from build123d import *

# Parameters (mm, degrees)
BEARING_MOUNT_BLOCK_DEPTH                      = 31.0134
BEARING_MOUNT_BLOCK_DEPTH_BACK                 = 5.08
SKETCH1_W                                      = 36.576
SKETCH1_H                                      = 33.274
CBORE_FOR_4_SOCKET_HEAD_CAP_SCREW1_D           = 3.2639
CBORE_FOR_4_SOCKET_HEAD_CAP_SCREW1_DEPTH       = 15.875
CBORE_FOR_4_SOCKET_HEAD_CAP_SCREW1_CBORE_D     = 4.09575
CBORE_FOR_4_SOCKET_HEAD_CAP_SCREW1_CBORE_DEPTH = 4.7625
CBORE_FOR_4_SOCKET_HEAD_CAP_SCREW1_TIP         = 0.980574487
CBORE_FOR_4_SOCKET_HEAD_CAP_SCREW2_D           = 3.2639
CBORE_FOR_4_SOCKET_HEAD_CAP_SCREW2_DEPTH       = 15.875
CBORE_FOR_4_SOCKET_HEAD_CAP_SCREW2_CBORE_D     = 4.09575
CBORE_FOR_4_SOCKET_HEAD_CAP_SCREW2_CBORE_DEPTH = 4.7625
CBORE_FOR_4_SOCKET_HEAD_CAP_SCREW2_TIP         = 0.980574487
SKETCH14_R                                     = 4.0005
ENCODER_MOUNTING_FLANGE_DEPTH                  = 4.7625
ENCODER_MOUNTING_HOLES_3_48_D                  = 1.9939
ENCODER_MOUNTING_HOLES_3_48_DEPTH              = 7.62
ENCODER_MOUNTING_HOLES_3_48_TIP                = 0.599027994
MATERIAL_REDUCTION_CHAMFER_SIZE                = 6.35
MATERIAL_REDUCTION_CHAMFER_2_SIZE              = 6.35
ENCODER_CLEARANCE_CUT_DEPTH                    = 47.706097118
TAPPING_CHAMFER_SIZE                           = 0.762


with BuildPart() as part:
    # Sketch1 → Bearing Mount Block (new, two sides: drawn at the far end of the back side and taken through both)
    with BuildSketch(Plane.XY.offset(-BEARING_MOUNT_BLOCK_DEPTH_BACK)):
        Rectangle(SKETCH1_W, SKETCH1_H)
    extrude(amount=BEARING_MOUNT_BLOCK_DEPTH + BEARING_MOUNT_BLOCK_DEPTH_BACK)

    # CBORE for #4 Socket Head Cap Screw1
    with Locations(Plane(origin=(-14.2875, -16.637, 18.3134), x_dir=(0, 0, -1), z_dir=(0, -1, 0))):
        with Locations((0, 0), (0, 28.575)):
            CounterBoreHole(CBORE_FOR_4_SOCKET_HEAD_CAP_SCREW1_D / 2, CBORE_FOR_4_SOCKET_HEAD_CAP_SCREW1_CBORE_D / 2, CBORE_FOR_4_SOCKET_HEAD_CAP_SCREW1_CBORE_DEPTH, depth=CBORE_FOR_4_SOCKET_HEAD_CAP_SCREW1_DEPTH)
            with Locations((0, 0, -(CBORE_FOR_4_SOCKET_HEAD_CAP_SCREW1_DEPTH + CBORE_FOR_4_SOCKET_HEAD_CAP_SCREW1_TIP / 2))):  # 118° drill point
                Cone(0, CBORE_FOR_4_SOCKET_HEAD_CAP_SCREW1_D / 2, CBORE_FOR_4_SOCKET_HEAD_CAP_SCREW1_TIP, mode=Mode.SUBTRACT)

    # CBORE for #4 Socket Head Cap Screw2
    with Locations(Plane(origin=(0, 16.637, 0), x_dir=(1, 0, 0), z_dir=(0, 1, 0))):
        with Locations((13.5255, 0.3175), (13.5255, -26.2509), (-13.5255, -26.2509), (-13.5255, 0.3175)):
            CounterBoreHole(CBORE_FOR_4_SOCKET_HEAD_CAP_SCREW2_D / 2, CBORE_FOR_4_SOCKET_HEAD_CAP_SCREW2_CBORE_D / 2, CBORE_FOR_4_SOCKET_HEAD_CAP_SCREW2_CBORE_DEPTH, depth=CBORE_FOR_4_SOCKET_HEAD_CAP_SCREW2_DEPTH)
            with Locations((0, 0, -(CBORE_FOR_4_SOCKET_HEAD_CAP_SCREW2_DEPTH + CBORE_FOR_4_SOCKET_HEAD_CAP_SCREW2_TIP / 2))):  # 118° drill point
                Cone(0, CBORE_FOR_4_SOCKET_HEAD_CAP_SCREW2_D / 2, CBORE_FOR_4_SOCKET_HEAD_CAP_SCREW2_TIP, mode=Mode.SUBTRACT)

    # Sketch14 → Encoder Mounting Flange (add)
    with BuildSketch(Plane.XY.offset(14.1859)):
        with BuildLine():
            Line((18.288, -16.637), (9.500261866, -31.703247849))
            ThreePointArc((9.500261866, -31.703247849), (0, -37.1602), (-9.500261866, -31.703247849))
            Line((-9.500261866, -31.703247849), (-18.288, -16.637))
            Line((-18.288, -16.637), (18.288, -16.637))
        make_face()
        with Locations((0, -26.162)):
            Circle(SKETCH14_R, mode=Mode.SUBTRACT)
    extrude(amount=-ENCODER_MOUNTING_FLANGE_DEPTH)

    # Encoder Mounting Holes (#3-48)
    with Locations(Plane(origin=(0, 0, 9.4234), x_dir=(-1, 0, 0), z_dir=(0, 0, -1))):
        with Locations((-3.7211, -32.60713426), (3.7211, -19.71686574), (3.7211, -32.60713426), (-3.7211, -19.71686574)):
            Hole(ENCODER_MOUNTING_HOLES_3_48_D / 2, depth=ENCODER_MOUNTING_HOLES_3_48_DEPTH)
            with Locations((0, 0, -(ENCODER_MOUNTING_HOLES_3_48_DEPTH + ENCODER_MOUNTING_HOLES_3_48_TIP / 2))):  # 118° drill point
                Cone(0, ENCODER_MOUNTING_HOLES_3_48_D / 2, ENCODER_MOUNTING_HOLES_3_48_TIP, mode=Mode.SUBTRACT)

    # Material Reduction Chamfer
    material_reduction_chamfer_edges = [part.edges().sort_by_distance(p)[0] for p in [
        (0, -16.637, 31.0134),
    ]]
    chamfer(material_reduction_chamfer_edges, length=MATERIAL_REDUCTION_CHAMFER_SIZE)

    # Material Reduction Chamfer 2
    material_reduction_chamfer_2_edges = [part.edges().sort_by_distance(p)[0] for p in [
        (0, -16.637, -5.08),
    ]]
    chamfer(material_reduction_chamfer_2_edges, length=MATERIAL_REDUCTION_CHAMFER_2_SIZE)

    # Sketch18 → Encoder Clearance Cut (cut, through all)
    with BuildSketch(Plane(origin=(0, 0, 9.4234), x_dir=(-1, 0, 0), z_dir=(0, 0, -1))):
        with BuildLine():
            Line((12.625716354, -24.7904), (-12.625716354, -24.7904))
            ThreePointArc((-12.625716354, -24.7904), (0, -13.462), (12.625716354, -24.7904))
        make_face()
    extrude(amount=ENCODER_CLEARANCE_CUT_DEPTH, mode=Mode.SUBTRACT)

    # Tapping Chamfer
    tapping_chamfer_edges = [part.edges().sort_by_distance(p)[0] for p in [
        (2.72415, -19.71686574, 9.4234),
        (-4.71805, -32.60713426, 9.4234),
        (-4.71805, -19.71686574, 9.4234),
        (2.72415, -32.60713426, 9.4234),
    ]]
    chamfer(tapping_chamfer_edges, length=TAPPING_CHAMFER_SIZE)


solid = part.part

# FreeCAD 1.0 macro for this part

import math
import FreeCAD as App
import Part
import Sketcher
Q = App.Units.Quantity


def edges_at(feature, points):
    """Names of the edges that pass closest to the given points."""
    edges = feature.Shape.Edges
    near = lambda p: min(range(len(edges)), key=lambda i: edges[i].distToShape(Part.Vertex(*p))[0])
    return sorted({f"Edge{near(p) + 1}" for p in points})

doc = App.newDocument("Part")
body = doc.addObject("PartDesign::Body", "Body")

sketch1 = doc.addObject("Sketcher::SketchObject", "Sketch")
body.addObject(sketch1)
sketch1.AttachmentSupport = (doc.XY_Plane, [""])
sketch1.MapMode = "FlatFace"
sketch1.addGeometry([
    Part.LineSegment(App.Vector(-18, 17, 0), App.Vector(-18, -17, 0)),
    Part.LineSegment(App.Vector(-18, -17, 0), App.Vector(18, -17, 0)),
    Part.LineSegment(App.Vector(18, -17, 0), App.Vector(18, 17, 0)),
    Part.LineSegment(App.Vector(18, 17, 0), App.Vector(-18, 17, 0)),
], False)
sketch1.addConstraint([
    Sketcher.Constraint("Coincident", 0, 2, 1, 1),
    Sketcher.Constraint("Coincident", 1, 2, 2, 1),
    Sketcher.Constraint("Coincident", 2, 2, 3, 1),
    Sketcher.Constraint("Coincident", 3, 2, 0, 1),
    Sketcher.Constraint("Vertical", 0),
    Sketcher.Constraint("Horizontal", 1),
    Sketcher.Constraint("Vertical", 2),
    Sketcher.Constraint("Horizontal", 3),
    Sketcher.Constraint("Symmetric", 0, 2, 2, 2, -1, 1),
    Sketcher.Constraint("DistanceX", 1, 1, 1, 2, Q("1.44 in")),
    Sketcher.Constraint("DistanceY", 0, 2, 0, 1, Q("1.31 in")),
])
pad1 = doc.addObject("PartDesign::Pad", "Pad")
body.addObject(pad1)
pad1.Profile = sketch1
pad1.Type = "TwoLengths"
pad1.Length = Q("1.221 in")
pad1.Length2 = Q("0.2 in")

sketch2 = doc.addObject("Sketcher::SketchObject", "Sketch001")
body.addObject(sketch2)
sketch2.AttachmentSupport = (doc.XZ_Plane, [""])
sketch2.MapMode = "FlatFace"
sketch2.AttachmentOffset = App.Placement(App.Vector(0, 0, 0.655 * 25.4), App.Rotation())
sketch2.addGeometry([
    Part.Circle(App.Vector(-14.3, 18.3, 0), App.Vector(0, 0, 1), 1.6),
    Part.Circle(App.Vector(14.3, 18.3, 0), App.Vector(0, 0, 1), 1.6),
], False)
sketch2.addConstraint([
    Sketcher.Constraint("Equal", 0, 1),
    Sketcher.Constraint("Symmetric", 0, 3, 1, 3, -2),
    Sketcher.Constraint("Diameter", 0, Q("0.1285 in")),
    Sketcher.Constraint("DistanceX", 0, 3, -1, 1, Q("0.5625 in")),
    Sketcher.Constraint("DistanceY", -1, 1, 0, 3, Q("0.721 in")),
])
doc.recompute()
hole = doc.addObject("PartDesign::Hole", "Hole")
body.addObject(hole)
hole.Profile = sketch2
hole.ThreadType = "None"
hole.Diameter = Q("0.1285 in")
hole.DepthType = "Dimension"
hole.Depth = Q("0.625 in")
hole.DrillPoint = "Angled"
hole.DrillPointAngle = 118
hole.HoleCutType = "Counterbore"
hole.HoleCutDiameter = 4.09575
hole.HoleCutDepth = Q("0.1875 in")

sketch3 = doc.addObject("Sketcher::SketchObject", "Sketch002")
body.addObject(sketch3)
sketch3.AttachmentSupport = (doc.XZ_Plane, [""])
sketch3.MapMode = "FlatFace"
sketch3.AttachmentOffset = App.Placement(App.Vector(0, 0, -0.655 * 25.4), App.Rotation())
sketch3.addGeometry([
    Part.Circle(App.Vector(13.5, -0.3, 0), App.Vector(0, 0, 1), 1.6),
    Part.Circle(App.Vector(13.5, 26.3, 0), App.Vector(0, 0, 1), 1.6),
    Part.Circle(App.Vector(-13.5, 26.3, 0), App.Vector(0, 0, 1), 1.6),
    Part.Circle(App.Vector(-13.5, -0.3, 0), App.Vector(0, 0, 1), 1.6),
], False)
sketch3.addConstraint([
    Sketcher.Constraint("Equal", 0, 1),
    Sketcher.Constraint("Equal", 1, 2),
    Sketcher.Constraint("Equal", 2, 3),
    Sketcher.Constraint("Symmetric", 1, 3, 2, 3, -2),
    Sketcher.Constraint("Symmetric", 0, 3, 3, 3, -2),
    Sketcher.Constraint("Vertical", 0, 3, 1, 3),
    Sketcher.Constraint("Diameter", 0, Q("0.1285 in")),
    Sketcher.Constraint("DistanceY", 0, 3, 1, 3, Q("1.046 in")),
    Sketcher.Constraint("DistanceX", 2, 3, 1, 3, Q("1.065 in")),
    Sketcher.Constraint("DistanceY", 0, 3, -1, 1, Q("0.0125 in")),
])
doc.recompute()
hole2 = doc.addObject("PartDesign::Hole", "Hole001")
body.addObject(hole2)
hole2.Profile = sketch3
hole2.ThreadType = "None"
hole2.Diameter = Q("0.1285 in")
hole2.DepthType = "Dimension"
hole2.Depth = Q("0.625 in")
hole2.DrillPoint = "Angled"
hole2.DrillPointAngle = 118
hole2.HoleCutType = "Counterbore"
hole2.HoleCutDiameter = 4.09575
hole2.HoleCutDepth = Q("0.1875 in")
hole2.Reversed = True

sketch4 = doc.addObject("Sketcher::SketchObject", "Sketch003")
body.addObject(sketch4)
sketch4.AttachmentSupport = (doc.XY_Plane, [""])
sketch4.MapMode = "FlatFace"
sketch4.AttachmentOffset = App.Placement(App.Vector(0, 0, 0.5585 * 25.4), App.Rotation())
sketch4.addGeometry([
    Part.LineSegment(App.Vector(9.5, -31.7, 0), App.Vector(18.3, -16.6, 0)),
    Part.LineSegment(App.Vector(18.3, -16.6, 0), App.Vector(-18.3, -16.6, 0)),
    Part.LineSegment(App.Vector(-18.3, -16.6, 0), App.Vector(-9.5, -31.7, 0)),
    Part.ArcOfCircle(Part.Circle(App.Vector(0, -26.2, 0), App.Vector(0, 0, 1), 11), math.radians(-150), math.radians(-30)),
    Part.Circle(App.Vector(0, -26.2, 0), App.Vector(0, 0, 1), 4),
], False)
sketch4.addConstraint([
    Sketcher.Constraint("Coincident", 0, 2, 1, 1),
    Sketcher.Constraint("Coincident", 1, 2, 2, 1),
    Sketcher.Constraint("Tangent", 2, 2, 3, 1),
    Sketcher.Constraint("Tangent", 3, 2, 0, 1),
    Sketcher.Constraint("Horizontal", 1),
    Sketcher.Constraint("Coincident", 4, 3, 3, 3),
    Sketcher.Constraint("Symmetric", 2, 2, 3, 2, -2),
    Sketcher.Constraint("Diameter", 4, Q("0.315 in")),
    Sketcher.Constraint("Radius", 3, Q("0.433 in")),
    Sketcher.Constraint("DistanceX", 1, 2, 1, 1, Q("1.44 in")),
    Sketcher.Constraint("DistanceY", 3, 3, -1, 1, Q("1.03 in")),
    Sketcher.Constraint("DistanceY", 0, 2, -1, 1, Q("0.655 in")),
])
pad2 = doc.addObject("PartDesign::Pad", "Pad001")
body.addObject(pad2)
pad2.Profile = sketch4
pad2.Length = Q("0.1875 in")
pad2.Reversed = True

sketch5 = doc.addObject("Sketcher::SketchObject", "Sketch004")
body.addObject(sketch5)
sketch5.AttachmentSupport = (doc.XY_Plane, [""])
sketch5.MapMode = "FlatFace"
sketch5.AttachmentOffset = App.Placement(App.Vector(0, 0, 0.371 * 25.4), App.Rotation())
sketch5.addGeometry([
    Part.Circle(App.Vector(3.7, -32.6, 0), App.Vector(0, 0, 1), 1),
    Part.Circle(App.Vector(-3.7, -19.7, 0), App.Vector(0, 0, 1), 1),
    Part.Circle(App.Vector(-3.7, -32.6, 0), App.Vector(0, 0, 1), 1),
    Part.Circle(App.Vector(3.7, -19.7, 0), App.Vector(0, 0, 1), 1),
], False)
sketch5.addConstraint([
    Sketcher.Constraint("Equal", 0, 1),
    Sketcher.Constraint("Equal", 1, 2),
    Sketcher.Constraint("Equal", 2, 3),
    Sketcher.Constraint("Symmetric", 0, 3, 2, 3, -2),
    Sketcher.Constraint("Symmetric", 1, 3, 3, 3, -2),
    Sketcher.Constraint("Vertical", 1, 3, 2, 3),
    Sketcher.Constraint("Diameter", 0, Q("0.0785 in")),
    Sketcher.Constraint("DistanceX", 1, 3, 0, 3, Q("0.293 in")),
    Sketcher.Constraint("DistanceY", 0, 3, 1, 3, 12.890269),
    Sketcher.Constraint("DistanceY", 0, 3, -1, 1, 32.607134),
])
doc.recompute()
hole3 = doc.addObject("PartDesign::Hole", "Hole002")
body.addObject(hole3)
hole3.Profile = sketch5
hole3.ThreadType = "None"
hole3.Diameter = Q("0.0785 in")
hole3.DepthType = "Dimension"
hole3.Depth = Q("0.3 in")
hole3.DrillPoint = "Angled"
hole3.DrillPointAngle = 118
hole3.Reversed = True
doc.recompute()

chamfer = doc.addObject("PartDesign::Chamfer", "Chamfer")
body.addObject(chamfer)
chamfer.Base = (hole3, edges_at(hole3, [(0, -16.637, 31.013)]))
chamfer.Size = Q("0.25 in")
doc.recompute()

chamfer2 = doc.addObject("PartDesign::Chamfer", "Chamfer001")
body.addObject(chamfer2)
chamfer2.Base = (chamfer, edges_at(chamfer, [(0, -16.637, -5.08)]))
chamfer2.Size = Q("0.25 in")

sketch6 = doc.addObject("Sketcher::SketchObject", "Sketch005")
body.addObject(sketch6)
sketch6.AttachmentSupport = (doc.XY_Plane, [""])
sketch6.MapMode = "FlatFace"
sketch6.AttachmentOffset = App.Placement(App.Vector(0, 0, 0.371 * 25.4), App.Rotation())
sketch6.addGeometry([
    Part.LineSegment(App.Vector(13, -25, 0), App.Vector(-13, -25, 0)),
    Part.ArcOfCircle(Part.Circle(App.Vector(0, -26, 0), App.Vector(0, 0, 1), 13), math.radians(6), math.radians(174)),
], False)
sketch6.addConstraint([
    Sketcher.Constraint("Coincident", 0, 1, 1, 1),
    Sketcher.Constraint("Coincident", 1, 2, 0, 2),
    Sketcher.Constraint("Horizontal", 0),
    Sketcher.Constraint("PointOnObject", 1, 3, -2),
    Sketcher.Constraint("Radius", 1, Q("0.5 in")),
    Sketcher.Constraint("DistanceY", 1, 3, -1, 1, Q("1.03 in")),
    Sketcher.Constraint("DistanceY", 0, 1, -1, 1, Q("0.976 in")),
])
pocket1 = doc.addObject("PartDesign::Pocket", "Pocket")
body.addObject(pocket1)
pocket1.Profile = sketch6
pocket1.Type = "ThroughAll"
doc.recompute()

chamfer3 = doc.addObject("PartDesign::Chamfer", "Chamfer002")
body.addObject(chamfer3)
chamfer3.Base = (pocket1, edges_at(pocket1, [
    (2.724, -19.717, 9.423),
    (-4.718, -32.607, 9.423),
    (-4.718, -19.717, 9.423),
    (2.724, -32.607, 9.423),
]))
chamfer3.Size = Q("0.03 in")

doc.recompute()
